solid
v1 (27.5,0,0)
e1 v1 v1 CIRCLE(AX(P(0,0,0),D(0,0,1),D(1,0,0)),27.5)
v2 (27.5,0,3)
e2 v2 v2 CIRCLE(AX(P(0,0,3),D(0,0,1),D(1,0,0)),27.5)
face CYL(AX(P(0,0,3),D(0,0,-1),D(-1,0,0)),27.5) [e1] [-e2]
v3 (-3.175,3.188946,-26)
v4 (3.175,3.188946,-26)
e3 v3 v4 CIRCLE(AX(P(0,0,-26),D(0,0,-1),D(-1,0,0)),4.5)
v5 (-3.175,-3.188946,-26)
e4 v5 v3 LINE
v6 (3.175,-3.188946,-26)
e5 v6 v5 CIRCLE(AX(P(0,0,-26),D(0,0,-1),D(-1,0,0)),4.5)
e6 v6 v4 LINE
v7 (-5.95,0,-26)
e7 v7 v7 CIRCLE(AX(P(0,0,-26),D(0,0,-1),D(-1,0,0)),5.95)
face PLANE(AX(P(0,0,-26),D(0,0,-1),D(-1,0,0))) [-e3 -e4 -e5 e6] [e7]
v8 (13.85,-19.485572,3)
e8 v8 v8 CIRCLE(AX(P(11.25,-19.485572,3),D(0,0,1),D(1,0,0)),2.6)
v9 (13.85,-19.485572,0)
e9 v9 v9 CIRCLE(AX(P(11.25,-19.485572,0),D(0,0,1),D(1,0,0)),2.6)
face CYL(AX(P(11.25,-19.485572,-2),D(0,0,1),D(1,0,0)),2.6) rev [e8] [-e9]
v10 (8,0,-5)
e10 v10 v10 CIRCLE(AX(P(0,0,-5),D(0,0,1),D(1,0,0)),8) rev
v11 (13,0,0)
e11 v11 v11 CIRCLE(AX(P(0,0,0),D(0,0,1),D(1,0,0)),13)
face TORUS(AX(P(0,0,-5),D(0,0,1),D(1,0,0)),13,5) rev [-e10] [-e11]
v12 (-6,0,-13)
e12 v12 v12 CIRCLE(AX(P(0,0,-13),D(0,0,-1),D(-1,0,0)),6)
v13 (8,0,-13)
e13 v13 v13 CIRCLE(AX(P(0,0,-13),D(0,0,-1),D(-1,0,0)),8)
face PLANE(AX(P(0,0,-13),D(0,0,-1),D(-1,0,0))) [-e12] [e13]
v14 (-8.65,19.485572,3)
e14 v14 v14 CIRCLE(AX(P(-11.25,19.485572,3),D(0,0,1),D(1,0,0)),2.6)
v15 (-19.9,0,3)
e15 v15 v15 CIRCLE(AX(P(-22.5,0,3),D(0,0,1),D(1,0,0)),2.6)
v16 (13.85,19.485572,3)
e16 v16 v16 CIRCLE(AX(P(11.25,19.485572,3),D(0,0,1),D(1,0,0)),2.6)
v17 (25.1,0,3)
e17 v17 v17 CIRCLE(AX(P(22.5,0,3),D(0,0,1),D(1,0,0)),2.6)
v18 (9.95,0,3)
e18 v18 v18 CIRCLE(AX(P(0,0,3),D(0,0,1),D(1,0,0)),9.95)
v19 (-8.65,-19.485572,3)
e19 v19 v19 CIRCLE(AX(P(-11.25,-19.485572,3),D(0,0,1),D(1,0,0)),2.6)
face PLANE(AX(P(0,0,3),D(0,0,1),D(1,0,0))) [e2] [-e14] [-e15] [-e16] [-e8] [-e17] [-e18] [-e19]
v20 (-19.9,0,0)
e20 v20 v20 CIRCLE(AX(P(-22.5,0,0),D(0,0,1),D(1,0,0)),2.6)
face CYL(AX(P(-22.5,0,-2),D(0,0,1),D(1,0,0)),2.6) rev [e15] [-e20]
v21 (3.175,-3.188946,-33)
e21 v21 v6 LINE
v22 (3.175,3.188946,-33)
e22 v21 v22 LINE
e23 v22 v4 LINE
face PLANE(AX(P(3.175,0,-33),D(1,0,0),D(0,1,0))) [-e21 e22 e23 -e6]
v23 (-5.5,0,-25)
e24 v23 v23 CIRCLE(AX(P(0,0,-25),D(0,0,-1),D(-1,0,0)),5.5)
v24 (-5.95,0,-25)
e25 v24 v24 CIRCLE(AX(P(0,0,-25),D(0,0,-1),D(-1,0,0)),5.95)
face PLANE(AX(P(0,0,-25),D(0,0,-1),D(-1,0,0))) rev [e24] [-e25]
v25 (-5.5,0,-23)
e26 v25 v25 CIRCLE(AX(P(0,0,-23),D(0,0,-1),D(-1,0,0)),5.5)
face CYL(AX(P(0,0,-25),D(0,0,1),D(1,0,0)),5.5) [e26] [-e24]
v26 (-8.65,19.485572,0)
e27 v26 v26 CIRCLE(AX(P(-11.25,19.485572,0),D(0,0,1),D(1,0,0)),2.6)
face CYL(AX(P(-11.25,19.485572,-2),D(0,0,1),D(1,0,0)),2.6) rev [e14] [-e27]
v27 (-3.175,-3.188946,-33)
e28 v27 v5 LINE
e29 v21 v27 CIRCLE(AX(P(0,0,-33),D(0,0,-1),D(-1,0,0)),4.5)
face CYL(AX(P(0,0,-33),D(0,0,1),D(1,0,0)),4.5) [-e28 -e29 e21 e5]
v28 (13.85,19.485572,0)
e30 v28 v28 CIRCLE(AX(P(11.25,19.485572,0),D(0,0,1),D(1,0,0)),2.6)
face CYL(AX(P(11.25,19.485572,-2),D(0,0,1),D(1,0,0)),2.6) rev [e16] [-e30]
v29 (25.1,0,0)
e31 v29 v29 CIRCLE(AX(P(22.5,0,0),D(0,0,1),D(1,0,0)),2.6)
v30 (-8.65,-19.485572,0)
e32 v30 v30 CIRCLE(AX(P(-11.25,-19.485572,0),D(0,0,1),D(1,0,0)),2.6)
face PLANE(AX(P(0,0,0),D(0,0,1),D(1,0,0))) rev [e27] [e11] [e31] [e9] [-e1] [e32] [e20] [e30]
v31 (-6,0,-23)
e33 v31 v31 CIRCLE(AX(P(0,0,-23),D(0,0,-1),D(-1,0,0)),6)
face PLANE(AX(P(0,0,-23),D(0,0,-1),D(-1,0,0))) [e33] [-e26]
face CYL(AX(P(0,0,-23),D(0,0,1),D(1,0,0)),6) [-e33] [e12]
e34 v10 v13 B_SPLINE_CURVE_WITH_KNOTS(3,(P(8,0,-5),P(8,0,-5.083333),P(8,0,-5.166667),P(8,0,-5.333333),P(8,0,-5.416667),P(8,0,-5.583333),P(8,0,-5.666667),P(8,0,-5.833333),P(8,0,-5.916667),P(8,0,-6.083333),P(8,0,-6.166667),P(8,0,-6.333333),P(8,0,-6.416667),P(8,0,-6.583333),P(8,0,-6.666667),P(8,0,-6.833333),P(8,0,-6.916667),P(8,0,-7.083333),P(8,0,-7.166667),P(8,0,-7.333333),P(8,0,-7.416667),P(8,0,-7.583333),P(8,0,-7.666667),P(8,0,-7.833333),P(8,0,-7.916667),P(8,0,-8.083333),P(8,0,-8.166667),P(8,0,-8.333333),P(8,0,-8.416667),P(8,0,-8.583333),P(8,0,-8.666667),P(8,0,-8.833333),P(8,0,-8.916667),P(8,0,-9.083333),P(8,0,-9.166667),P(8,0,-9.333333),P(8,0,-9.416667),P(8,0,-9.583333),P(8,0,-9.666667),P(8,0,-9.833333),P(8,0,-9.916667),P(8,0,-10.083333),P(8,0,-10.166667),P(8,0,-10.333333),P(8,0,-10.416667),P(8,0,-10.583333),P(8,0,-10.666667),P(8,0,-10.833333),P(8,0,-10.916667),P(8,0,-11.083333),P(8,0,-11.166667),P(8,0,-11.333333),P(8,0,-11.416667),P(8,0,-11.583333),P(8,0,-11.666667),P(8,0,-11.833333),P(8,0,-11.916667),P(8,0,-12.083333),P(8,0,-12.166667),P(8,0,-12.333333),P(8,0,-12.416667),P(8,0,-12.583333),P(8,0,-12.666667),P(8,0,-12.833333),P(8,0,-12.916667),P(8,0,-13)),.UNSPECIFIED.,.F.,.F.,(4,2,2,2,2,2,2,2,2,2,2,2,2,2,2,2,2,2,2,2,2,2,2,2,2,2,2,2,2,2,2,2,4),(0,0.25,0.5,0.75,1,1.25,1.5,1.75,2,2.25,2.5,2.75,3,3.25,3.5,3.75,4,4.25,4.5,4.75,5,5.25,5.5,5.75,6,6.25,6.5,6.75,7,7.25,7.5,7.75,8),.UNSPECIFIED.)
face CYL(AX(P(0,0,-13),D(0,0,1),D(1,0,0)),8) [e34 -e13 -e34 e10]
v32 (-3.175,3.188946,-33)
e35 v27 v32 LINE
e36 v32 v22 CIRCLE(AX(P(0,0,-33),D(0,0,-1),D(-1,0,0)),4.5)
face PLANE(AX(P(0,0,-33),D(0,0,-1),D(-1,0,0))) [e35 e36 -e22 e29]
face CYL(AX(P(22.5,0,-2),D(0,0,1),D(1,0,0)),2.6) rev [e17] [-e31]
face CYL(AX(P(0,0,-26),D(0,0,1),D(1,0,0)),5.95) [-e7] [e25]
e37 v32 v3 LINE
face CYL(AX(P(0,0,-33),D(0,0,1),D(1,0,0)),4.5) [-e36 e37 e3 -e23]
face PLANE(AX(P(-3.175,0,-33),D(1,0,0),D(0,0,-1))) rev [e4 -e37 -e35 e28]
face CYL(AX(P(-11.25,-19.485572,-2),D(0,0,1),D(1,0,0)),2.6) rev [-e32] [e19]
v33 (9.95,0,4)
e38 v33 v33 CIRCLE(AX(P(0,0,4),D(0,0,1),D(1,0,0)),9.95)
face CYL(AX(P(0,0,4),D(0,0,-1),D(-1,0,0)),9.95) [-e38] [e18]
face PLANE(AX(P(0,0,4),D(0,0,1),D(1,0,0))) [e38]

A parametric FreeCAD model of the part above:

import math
import FreeCAD as App
import Part
import Sketcher
from FreeCAD import Vector
Q = App.Units.Quantity


def edges_at(feature, points):
    """Names of the edges that pass closest to the given points."""
    edges = feature.Shape.Edges
    near = lambda p: min(range(len(edges)), key=lambda i: edges[i].distToShape(Part.Vertex(*p))[0])
    return sorted({f"Edge{near(p) + 1}" for p in points})

doc = App.newDocument("Part")
body = doc.addObject("PartDesign::Body", "Body")

sketch1 = body.newObject("Sketcher::SketchObject", "Sketch")
sketch1.AttachmentSupport = (doc.getObject("XY_Plane"), [""])
sketch1.MapMode = "FlatFace"
sketch1.addGeometry(Part.Circle(Vector(0, 0, 0), Vector(0, 0, 1), 27.5), False)
sketch1.addConstraint([
    Sketcher.Constraint("Coincident", 0, 3, -1, 1),
    Sketcher.Constraint("Diameter", 0, Q("55 mm")),
])
pad1 = body.newObject("PartDesign::Pad", "Pad")
pad1.Profile = sketch1
pad1.Length = 3

sketch2 = body.newObject("Sketcher::SketchObject", "Sketch001")
sketch2.AttachmentSupport = (doc.getObject("XY_Plane"), [""])
sketch2.MapMode = "FlatFace"
sketch2.AttachmentOffset = App.Placement(Vector(0, 0, 3), App.Rotation())
sketch2.addGeometry([
    Part.Circle(Vector(22.5, 0, 0), Vector(0, 0, 1), 2.6),
    Part.Circle(Vector(11.25, -19.485572, 0), Vector(0, 0, 1), 2.6),
    Part.Circle(Vector(-11.25, -19.485572, 0), Vector(0, 0, 1), 2.6),
    Part.Circle(Vector(-22.5, 0, 0), Vector(0, 0, 1), 2.6),
    Part.Circle(Vector(-11.25, 19.485572, 0), Vector(0, 0, 1), 2.6),
    Part.Circle(Vector(11.25, 19.485572, 0), Vector(0, 0, 1), 2.6),
], False)
sketch2.addConstraint([
    Sketcher.Constraint("Equal", 0, 1),
    Sketcher.Constraint("Equal", 1, 2),
    Sketcher.Constraint("Equal", 2, 3),
    Sketcher.Constraint("Equal", 3, 4),
    Sketcher.Constraint("Equal", 4, 5),
    Sketcher.Constraint("Symmetric", 0, 3, 3, 3, -1, 1),
    Sketcher.Constraint("Symmetric", 1, 3, 4, 3, -1, 1),
    Sketcher.Constraint("Symmetric", 2, 3, 5, 3, -1, 1),
    Sketcher.Constraint("Symmetric", 1, 3, 2, 3, -2),
    Sketcher.Constraint("PointOnObject", 0, 3, -1),
    Sketcher.Constraint("Diameter", 0, Q("5.2 mm")),
    Sketcher.Constraint("DistanceX", 3, 3, 0, 3, Q("45 mm")),
    Sketcher.Constraint("DistanceX", 2, 3, 1, 3, Q("22.5 mm")),
    Sketcher.Constraint("DistanceY", 1, 3, -1, 1, Q("19.485572 mm")),
])
pocket1 = body.newObject("PartDesign::Pocket", "Pocket")
pocket1.Profile = sketch2
pocket1.Length = 5

sketch3 = body.newObject("Sketcher::SketchObject", "Sketch002")
sketch3.AttachmentSupport = (doc.getObject("XY_Plane"), [""])
sketch3.MapMode = "FlatFace"
sketch3.AttachmentOffset = App.Placement(Vector(0, 0, 3), App.Rotation())
sketch3.addGeometry(Part.Circle(Vector(0, 0, 0), Vector(0, 0, 1), 9.95), False)
sketch3.addConstraint([
    Sketcher.Constraint("Coincident", 0, 3, -1, 1),
    Sketcher.Constraint("Diameter", 0, Q("19.9 mm")),
])
pad2 = body.newObject("PartDesign::Pad", "Pad001")
pad2.Profile = sketch3
pad2.Length = 1

sketch4 = body.newObject("Sketcher::SketchObject", "Sketch003")
sketch4.AttachmentSupport = (doc.getObject("XY_Plane"), [""])
sketch4.MapMode = "FlatFace"
sketch4.addGeometry(Part.Circle(Vector(0, 0, 0), Vector(0, 0, 1), 8), False)
sketch4.addConstraint([
    Sketcher.Constraint("Coincident", 0, 3, -1, 1),
    Sketcher.Constraint("Diameter", 0, Q("16 mm")),
])
pad3 = body.newObject("PartDesign::Pad", "Pad002")
pad3.Profile = sketch4
pad3.Length = 13
pad3.Reversed = True

sketch5 = body.newObject("Sketcher::SketchObject", "Sketch004")
sketch5.AttachmentSupport = (doc.getObject("XY_Plane"), [""])
sketch5.MapMode = "FlatFace"
sketch5.AttachmentOffset = App.Placement(Vector(0, 0, -13), App.Rotation())
sketch5.addGeometry(Part.Circle(Vector(0, 0, 0), Vector(0, 0, 1), 6), False)
sketch5.addConstraint([
    Sketcher.Constraint("Coincident", 0, 3, -1, 1),
    Sketcher.Constraint("Diameter", 0, Q("12 mm")),
])
pad4 = body.newObject("PartDesign::Pad", "Pad003")
pad4.Profile = sketch5
pad4.Length = 10
pad4.Reversed = True

sketch6 = body.newObject("Sketcher::SketchObject", "Sketch005")
sketch6.AttachmentSupport = (doc.getObject("XY_Plane"), [""])
sketch6.MapMode = "FlatFace"
sketch6.AttachmentOffset = App.Placement(Vector(0, 0, -23), App.Rotation())
sketch6.addGeometry(Part.Circle(Vector(0, 0, 0), Vector(0, 0, 1), 5.5), False)
sketch6.addConstraint([
    Sketcher.Constraint("Coincident", 0, 3, -1, 1),
    Sketcher.Constraint("Diameter", 0, Q("11 mm")),
])
pad5 = body.newObject("PartDesign::Pad", "Pad004")
pad5.Profile = sketch6
pad5.Length = 2
pad5.Reversed = True

sketch7 = body.newObject("Sketcher::SketchObject", "Sketch006")
sketch7.AttachmentSupport = (doc.getObject("XY_Plane"), [""])
sketch7.MapMode = "FlatFace"
sketch7.AttachmentOffset = App.Placement(Vector(0, 0, -25), App.Rotation())
sketch7.addGeometry(Part.Circle(Vector(0, 0, 0), Vector(0, 0, 1), 5.95), False)
sketch7.addConstraint([
    Sketcher.Constraint("Coincident", 0, 3, -1, 1),
    Sketcher.Constraint("Diameter", 0, Q("11.9 mm")),
])
pad6 = body.newObject("PartDesign::Pad", "Pad005")
pad6.Profile = sketch7
pad6.Length = 1
pad6.Reversed = True
doc.recompute()

fillet = body.newObject("PartDesign::Fillet", "Fillet")
fillet.Base = (pad6, edges_at(pad6, [(-8, 0, 0)]))
fillet.Radius = 5

sketch8 = body.newObject("Sketcher::SketchObject", "Sketch007")
sketch8.AttachmentSupport = (doc.getObject("XY_Plane"), [""])
sketch8.MapMode = "FlatFace"
sketch8.AttachmentOffset = App.Placement(Vector(0, 0, -26), App.Rotation())
sketch8.addGeometry([
    Part.LineSegment(Vector(3.175, 3.188946, 0), Vector(3.175, -3.188946, 0)),
    Part.ArcOfCircle(Part.Circle(Vector(0, 0, 0), Vector(0, 0, 1), 4.5), math.radians(-134.874444), math.radians(-45.125556)),
    Part.LineSegment(Vector(-3.175, -3.188946, 0), Vector(-3.175, 3.188946, 0)),
    Part.ArcOfCircle(Part.Circle(Vector(0, 0, 0), Vector(0, 0, 1), 4.5), math.radians(45.125556), math.radians(134.874444)),
], False)
sketch8.addConstraint([
    Sketcher.Constraint("Coincident", 0, 2, 1, 2),
    Sketcher.Constraint("Coincident", 1, 1, 2, 1),
    Sketcher.Constraint("Coincident", 2, 2, 3, 2),
    Sketcher.Constraint("Coincident", 3, 1, 0, 1),
    Sketcher.Constraint("Vertical", 0),
    Sketcher.Constraint("Vertical", 2),
    Sketcher.Constraint("Coincident", 1, 3, -1, 1),
    Sketcher.Constraint("Coincident", 3, 3, -1, 1),
    Sketcher.Constraint("Equal", 1, 3),
    Sketcher.Constraint("Horizontal", 0, 2, 1, 1),
    Sketcher.Constraint("Radius", 1, Q("4.5 mm")),
    Sketcher.Constraint("DistanceX", 1, 1, 0, 2, Q("6.35 mm")),
])
pad7 = body.newObject("PartDesign::Pad", "Pad006")
pad7.Profile = sketch8
pad7.Length = 7
pad7.Reversed = True

doc.recompute()
